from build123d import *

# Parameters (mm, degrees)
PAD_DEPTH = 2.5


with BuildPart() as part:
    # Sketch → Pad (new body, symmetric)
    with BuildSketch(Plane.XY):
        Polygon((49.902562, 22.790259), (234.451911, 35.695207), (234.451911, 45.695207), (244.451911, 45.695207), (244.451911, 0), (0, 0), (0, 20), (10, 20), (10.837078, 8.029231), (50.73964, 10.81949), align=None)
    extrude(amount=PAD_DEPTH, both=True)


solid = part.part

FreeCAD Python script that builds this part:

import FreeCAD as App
import Part
import Sketcher
from FreeCAD import Vector
Q = App.Units.Quantity


def add_polygon(sketch, points):
    """Adds a closed chain of lines whose ends are joined by coincident constraints."""
    first, n = sketch.GeometryCount, len(points)
    for a, b in zip(points, points[1:] + points[:1]):
        sketch.addGeometry(Part.LineSegment(App.Vector(*a, 0), App.Vector(*b, 0)), False)
    for i in range(n):
        sketch.addConstraint(Sketcher.Constraint("Coincident", first + i, 2, first + (i + 1) % n, 1))

doc = App.newDocument("Part")
params = doc.addObject("Spreadsheet::Sheet", "Params")
for row, (alias, value) in enumerate([
    ("sketch1_width", "10 mm"),
    ("sketch1_height", "20 mm"),
    ("sketch1_length", "185 mm"),
    ("sketch1_length2", "12 mm"),
    ("sketch1_length3", "40 mm"),
    ("pad1_length", "5 mm"),
], start=1):
    params.set(f"A{row}", alias)
    params.set(f"B{row}", "=" + value)
    params.setAlias(f"B{row}", alias)

body = doc.addObject("PartDesign::Body", "Body")

sketch1 = body.newObject("Sketcher::SketchObject", "Sketch")
sketch1.AttachmentSupport = (doc.getObject("XY_Plane"), [""])
sketch1.MapMode = "FlatFace"
add_polygon(sketch1, [(234, 36), (50, 23), (51, 11), (11, 8), (10, 20), (0, 20), (0, 0), (244, 0), (244, 46), (234, 46)])
sketch1.addConstraint(Sketcher.Constraint("Horizontal", 4))
sketch1.addConstraint(Sketcher.Constraint("Vertical", 5))
sketch1.addConstraint(Sketcher.Constraint("Horizontal", 6))
sketch1.addConstraint(Sketcher.Constraint("Vertical", 7))
sketch1.addConstraint(Sketcher.Constraint("Horizontal", 8))
sketch1.addConstraint(Sketcher.Constraint("Vertical", 9))
sketch1.addConstraint(Sketcher.Constraint("Coincident", 5, 2, -1, 1))
sketch1.addConstraint(Sketcher.Constraint("Perpendicular", 0, 1))
sketch1.addConstraint(Sketcher.Constraint("Perpendicular", 1, 2))
sketch1.addConstraint(Sketcher.Constraint("Perpendicular", 2, 3))
sketch1.addConstraint(Sketcher.Constraint("Equal", 4, 8))
sketch1.addConstraint(Sketcher.Constraint("Equal", 8, 9))
sketch1.addConstraint(Sketcher.Constraint("Equal", 1, 3))
sketch1.addConstraint(Sketcher.Constraint("DistanceX", 4, 2, 4, 1, 10.0))
sketch1.addConstraint(Sketcher.Constraint("DistanceY", 5, 2, 5, 1, 20.0))
sketch1.addConstraint(Sketcher.Constraint("Angle", 0, Q("-176 deg")))
sketch1.addConstraint(Sketcher.Constraint("Distance", 0, 185.0))
sketch1.addConstraint(Sketcher.Constraint("Distance", 1, 12.0))
sketch1.addConstraint(Sketcher.Constraint("Distance", 2, 40.0))
sketch1.setExpression("Constraints[23]", "Params.sketch1_width")
sketch1.setExpression("Constraints[24]", "Params.sketch1_height")
sketch1.setExpression("Constraints[26]", "Params.sketch1_length")
sketch1.setExpression("Constraints[27]", "Params.sketch1_length2")
sketch1.setExpression("Constraints[28]", "Params.sketch1_length3")
pad1 = body.newObject("PartDesign::Pad", "Pad")
pad1.Profile = sketch1
pad1.setExpression("Length", "Params.pad1_length")
pad1.Midplane = True

doc.recompute()
